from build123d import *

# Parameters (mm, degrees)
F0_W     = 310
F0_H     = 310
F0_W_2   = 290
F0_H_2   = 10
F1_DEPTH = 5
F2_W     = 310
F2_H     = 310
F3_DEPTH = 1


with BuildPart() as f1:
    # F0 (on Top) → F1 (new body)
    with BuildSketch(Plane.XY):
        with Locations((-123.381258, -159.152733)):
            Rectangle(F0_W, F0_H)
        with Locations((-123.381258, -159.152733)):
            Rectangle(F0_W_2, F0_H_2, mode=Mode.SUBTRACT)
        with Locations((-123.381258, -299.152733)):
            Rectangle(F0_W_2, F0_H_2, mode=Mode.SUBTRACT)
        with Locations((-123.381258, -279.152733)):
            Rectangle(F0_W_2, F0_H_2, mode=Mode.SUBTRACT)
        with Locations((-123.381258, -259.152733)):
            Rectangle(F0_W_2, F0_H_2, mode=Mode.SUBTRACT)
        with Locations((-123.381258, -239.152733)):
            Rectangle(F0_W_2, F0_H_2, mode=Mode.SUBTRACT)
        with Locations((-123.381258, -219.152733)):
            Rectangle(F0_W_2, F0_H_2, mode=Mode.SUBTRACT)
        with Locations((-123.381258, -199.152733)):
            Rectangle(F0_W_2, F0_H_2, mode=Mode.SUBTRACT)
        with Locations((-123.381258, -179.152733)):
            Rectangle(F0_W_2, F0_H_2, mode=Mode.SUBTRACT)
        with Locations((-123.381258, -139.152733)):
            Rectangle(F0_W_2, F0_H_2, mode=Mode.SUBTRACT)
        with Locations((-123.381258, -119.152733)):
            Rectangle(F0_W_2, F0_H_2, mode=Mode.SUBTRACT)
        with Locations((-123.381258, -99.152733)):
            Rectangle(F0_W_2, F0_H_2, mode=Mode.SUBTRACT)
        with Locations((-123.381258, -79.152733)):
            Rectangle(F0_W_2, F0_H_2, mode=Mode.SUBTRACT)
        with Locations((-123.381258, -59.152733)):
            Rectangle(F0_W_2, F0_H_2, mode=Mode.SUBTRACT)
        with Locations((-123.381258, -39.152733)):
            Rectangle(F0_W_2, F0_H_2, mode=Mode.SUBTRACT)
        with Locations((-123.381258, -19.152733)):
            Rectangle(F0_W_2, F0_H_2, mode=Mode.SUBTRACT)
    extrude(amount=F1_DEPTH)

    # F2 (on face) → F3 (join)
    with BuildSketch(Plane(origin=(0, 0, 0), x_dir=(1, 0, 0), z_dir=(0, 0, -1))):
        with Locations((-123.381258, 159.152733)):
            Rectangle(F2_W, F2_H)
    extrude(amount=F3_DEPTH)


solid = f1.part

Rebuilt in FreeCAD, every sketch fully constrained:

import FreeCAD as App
import Part
import Sketcher

V = App.Vector

doc = App.newDocument("Part")
params = doc.addObject("Spreadsheet::Sheet", "Params")
for row, (alias, value) in enumerate([
    ("sketch1_width", "310 mm"),
    ("sketch1_width2", "290 mm"),
    ("sketch1_height", "10 mm"),
    ("pad1_length", "5 mm"),
    ("sketch2_width", "310 mm"),
    ("pad2_length", "1 mm"),
], start=1):
    params.set(f"A{row}", alias)
    params.set(f"B{row}", "=" + value)
    params.setAlias(f"B{row}", alias)

body = doc.addObject("PartDesign::Body", "Body")

sketch1 = doc.addObject("Sketcher::SketchObject", "Sketch")
body.addObject(sketch1)
sketch1.AttachmentSupport = (doc.XY_Plane, [""])
sketch1.MapMode = "FlatFace"
sketch1.addGeometry([
    Part.LineSegment(V(-278, -4, 0), V(-278, -314, 0)),
    Part.LineSegment(V(-278, -314, 0), V(32, -314, 0)),
    Part.LineSegment(V(32, -314, 0), V(32, -4, 0)),
    Part.LineSegment(V(32, -4, 0), V(-278, -4, 0)),
    Part.LineSegment(V(22, -304, 0), V(-268, -304, 0)),
    Part.LineSegment(V(-268, -304, 0), V(-268, -294, 0)),
    Part.LineSegment(V(-268, -294, 0), V(22, -294, 0)),
    Part.LineSegment(V(22, -294, 0), V(22, -304, 0)),
    Part.LineSegment(V(22, -284, 0), V(-268, -284, 0)),
    Part.LineSegment(V(-268, -284, 0), V(-268, -274, 0)),
    Part.LineSegment(V(-268, -274, 0), V(22, -274, 0)),
    Part.LineSegment(V(22, -274, 0), V(22, -284, 0)),
    Part.LineSegment(V(22, -264, 0), V(-268, -264, 0)),
    Part.LineSegment(V(-268, -264, 0), V(-268, -254, 0)),
    Part.LineSegment(V(-268, -254, 0), V(22, -254, 0)),
    Part.LineSegment(V(22, -254, 0), V(22, -264, 0)),
    Part.LineSegment(V(22, -244, 0), V(-268, -244, 0)),
    Part.LineSegment(V(-268, -244, 0), V(-268, -234, 0)),
    Part.LineSegment(V(-268, -234, 0), V(22, -234, 0)),
    Part.LineSegment(V(22, -234, 0), V(22, -244, 0)),
    Part.LineSegment(V(22, -224, 0), V(-268, -224, 0)),
    Part.LineSegment(V(-268, -224, 0), V(-268, -214, 0)),
    Part.LineSegment(V(-268, -214, 0), V(22, -214, 0)),
    Part.LineSegment(V(22, -214, 0), V(22, -224, 0)),
    Part.LineSegment(V(22, -204, 0), V(-268, -204, 0)),
    Part.LineSegment(V(-268, -204, 0), V(-268, -194, 0)),
    Part.LineSegment(V(-268, -194, 0), V(22, -194, 0)),
    Part.LineSegment(V(22, -194, 0), V(22, -204, 0)),
    Part.LineSegment(V(22, -184, 0), V(-268, -184, 0)),
    Part.LineSegment(V(-268, -184, 0), V(-268, -174, 0)),
    Part.LineSegment(V(-268, -174, 0), V(22, -174, 0)),
    Part.LineSegment(V(22, -174, 0), V(22, -184, 0)),
    Part.LineSegment(V(22, -164, 0), V(-268, -164, 0)),
    Part.LineSegment(V(-268, -164, 0), V(-268, -154, 0)),
    Part.LineSegment(V(-268, -154, 0), V(22, -154, 0)),
    Part.LineSegment(V(22, -154, 0), V(22, -164, 0)),
    Part.LineSegment(V(22, -144, 0), V(-268, -144, 0)),
    Part.LineSegment(V(-268, -144, 0), V(-268, -134, 0)),
    Part.LineSegment(V(-268, -134, 0), V(22, -134, 0)),
    Part.LineSegment(V(22, -134, 0), V(22, -144, 0)),
    Part.LineSegment(V(22, -124, 0), V(-268, -124, 0)),
    Part.LineSegment(V(-268, -124, 0), V(-268, -114, 0)),
    Part.LineSegment(V(-268, -114, 0), V(22, -114, 0)),
    Part.LineSegment(V(22, -114, 0), V(22, -124, 0)),
    Part.LineSegment(V(22, -104, 0), V(-268, -104, 0)),
    Part.LineSegment(V(-268, -104, 0), V(-268, -94, 0)),
    Part.LineSegment(V(-268, -94, 0), V(22, -94, 0)),
    Part.LineSegment(V(22, -94, 0), V(22, -104, 0)),
    Part.LineSegment(V(22, -84, 0), V(-268, -84, 0)),
    Part.LineSegment(V(-268, -84, 0), V(-268, -74, 0)),
    Part.LineSegment(V(-268, -74, 0), V(22, -74, 0)),
    Part.LineSegment(V(22, -74, 0), V(22, -84, 0)),
    Part.LineSegment(V(22, -64, 0), V(-268, -64, 0)),
    Part.LineSegment(V(-268, -64, 0), V(-268, -54, 0)),
    Part.LineSegment(V(-268, -54, 0), V(22, -54, 0)),
    Part.LineSegment(V(22, -54, 0), V(22, -64, 0)),
    Part.LineSegment(V(22, -44, 0), V(-268, -44, 0)),
    Part.LineSegment(V(-268, -44, 0), V(-268, -34, 0)),
    Part.LineSegment(V(-268, -34, 0), V(22, -34, 0)),
    Part.LineSegment(V(22, -34, 0), V(22, -44, 0)),
    Part.LineSegment(V(22, -24, 0), V(-268, -24, 0)),
    Part.LineSegment(V(-268, -24, 0), V(-268, -14, 0)),
    Part.LineSegment(V(-268, -14, 0), V(22, -14, 0)),
    Part.LineSegment(V(22, -14, 0), V(22, -24, 0)),
], False)
sketch1.addConstraint([
    Sketcher.Constraint("Coincident", 0, 2, 1, 1),
    Sketcher.Constraint("Coincident", 1, 2, 2, 1),
    Sketcher.Constraint("Coincident", 2, 2, 3, 1),
    Sketcher.Constraint("Coincident", 3, 2, 0, 1),
    Sketcher.Constraint("Coincident", 4, 2, 5, 1),
    Sketcher.Constraint("Coincident", 5, 2, 6, 1),
    Sketcher.Constraint("Coincident", 6, 2, 7, 1),
    Sketcher.Constraint("Coincident", 7, 2, 4, 1),
    Sketcher.Constraint("Coincident", 8, 2, 9, 1),
    Sketcher.Constraint("Coincident", 9, 2, 10, 1),
    Sketcher.Constraint("Coincident", 10, 2, 11, 1),
    Sketcher.Constraint("Coincident", 11, 2, 8, 1),
    Sketcher.Constraint("Coincident", 12, 2, 13, 1),
    Sketcher.Constraint("Coincident", 13, 2, 14, 1),
    Sketcher.Constraint("Coincident", 14, 2, 15, 1),
    Sketcher.Constraint("Coincident", 15, 2, 12, 1),
    Sketcher.Constraint("Coincident", 16, 2, 17, 1),
    Sketcher.Constraint("Coincident", 17, 2, 18, 1),
    Sketcher.Constraint("Coincident", 18, 2, 19, 1),
    Sketcher.Constraint("Coincident", 19, 2, 16, 1),
    Sketcher.Constraint("Coincident", 20, 2, 21, 1),
    Sketcher.Constraint("Coincident", 21, 2, 22, 1),
    Sketcher.Constraint("Coincident", 22, 2, 23, 1),
    Sketcher.Constraint("Coincident", 23, 2, 20, 1),
    Sketcher.Constraint("Coincident", 24, 2, 25, 1),
    Sketcher.Constraint("Coincident", 25, 2, 26, 1),
    Sketcher.Constraint("Coincident", 26, 2, 27, 1),
    Sketcher.Constraint("Coincident", 27, 2, 24, 1),
    Sketcher.Constraint("Coincident", 28, 2, 29, 1),
    Sketcher.Constraint("Coincident", 29, 2, 30, 1),
    Sketcher.Constraint("Coincident", 30, 2, 31, 1),
    Sketcher.Constraint("Coincident", 31, 2, 28, 1),
    Sketcher.Constraint("Coincident", 32, 2, 33, 1),
    Sketcher.Constraint("Coincident", 33, 2, 34, 1),
    Sketcher.Constraint("Coincident", 34, 2, 35, 1),
    Sketcher.Constraint("Coincident", 35, 2, 32, 1),
    Sketcher.Constraint("Coincident", 36, 2, 37, 1),
    Sketcher.Constraint("Coincident", 37, 2, 38, 1),
    Sketcher.Constraint("Coincident", 38, 2, 39, 1),
    Sketcher.Constraint("Coincident", 39, 2, 36, 1),
    Sketcher.Constraint("Coincident", 40, 2, 41, 1),
    Sketcher.Constraint("Coincident", 41, 2, 42, 1),
    Sketcher.Constraint("Coincident", 42, 2, 43, 1),
    Sketcher.Constraint("Coincident", 43, 2, 40, 1),
    Sketcher.Constraint("Coincident", 44, 2, 45, 1),
    Sketcher.Constraint("Coincident", 45, 2, 46, 1),
    Sketcher.Constraint("Coincident", 46, 2, 47, 1),
    Sketcher.Constraint("Coincident", 47, 2, 44, 1),
    Sketcher.Constraint("Coincident", 48, 2, 49, 1),
    Sketcher.Constraint("Coincident", 49, 2, 50, 1),
    Sketcher.Constraint("Coincident", 50, 2, 51, 1),
    Sketcher.Constraint("Coincident", 51, 2, 48, 1),
    Sketcher.Constraint("Coincident", 52, 2, 53, 1),
    Sketcher.Constraint("Coincident", 53, 2, 54, 1),
    Sketcher.Constraint("Coincident", 54, 2, 55, 1),
    Sketcher.Constraint("Coincident", 55, 2, 52, 1),
    Sketcher.Constraint("Coincident", 56, 2, 57, 1),
    Sketcher.Constraint("Coincident", 57, 2, 58, 1),
    Sketcher.Constraint("Coincident", 58, 2, 59, 1),
    Sketcher.Constraint("Coincident", 59, 2, 56, 1),
    Sketcher.Constraint("Coincident", 60, 2, 61, 1),
    Sketcher.Constraint("Coincident", 61, 2, 62, 1),
    Sketcher.Constraint("Coincident", 62, 2, 63, 1),
    Sketcher.Constraint("Coincident", 63, 2, 60, 1),
    Sketcher.Constraint("Vertical", 0),
    Sketcher.Constraint("Horizontal", 1),
    Sketcher.Constraint("Vertical", 2),
    Sketcher.Constraint("Horizontal", 3),
    Sketcher.Constraint("Horizontal", 4),
    Sketcher.Constraint("Vertical", 5),
    Sketcher.Constraint("Horizontal", 6),
    Sketcher.Constraint("Vertical", 7),
    Sketcher.Constraint("Horizontal", 8),
    Sketcher.Constraint("Vertical", 9),
    Sketcher.Constraint("Horizontal", 10),
    Sketcher.Constraint("Vertical", 11),
    Sketcher.Constraint("Horizontal", 12),
    Sketcher.Constraint("Vertical", 13),
    Sketcher.Constraint("Horizontal", 14),
    Sketcher.Constraint("Vertical", 15),
    Sketcher.Constraint("Horizontal", 16),
    Sketcher.Constraint("Vertical", 17),
    Sketcher.Constraint("Horizontal", 18),
    Sketcher.Constraint("Vertical", 19),
    Sketcher.Constraint("Horizontal", 20),
    Sketcher.Constraint("Vertical", 21),
    Sketcher.Constraint("Horizontal", 22),
    Sketcher.Constraint("Vertical", 23),
    Sketcher.Constraint("Horizontal", 24),
    Sketcher.Constraint("Vertical", 25),
    Sketcher.Constraint("Horizontal", 26),
    Sketcher.Constraint("Vertical", 27),
    Sketcher.Constraint("Horizontal", 28),
    Sketcher.Constraint("Vertical", 29),
    Sketcher.Constraint("Horizontal", 30),
    Sketcher.Constraint("Vertical", 31),
    Sketcher.Constraint("Horizontal", 32),
    Sketcher.Constraint("Vertical", 33),
    Sketcher.Constraint("Horizontal", 34),
    Sketcher.Constraint("Vertical", 35),
    Sketcher.Constraint("Horizontal", 36),
    Sketcher.Constraint("Vertical", 37),
    Sketcher.Constraint("Horizontal", 38),
    Sketcher.Constraint("Vertical", 39),
    Sketcher.Constraint("Horizontal", 40),
    Sketcher.Constraint("Vertical", 41),
    Sketcher.Constraint("Horizontal", 42),
    Sketcher.Constraint("Vertical", 43),
    Sketcher.Constraint("Horizontal", 44),
    Sketcher.Constraint("Vertical", 45),
    Sketcher.Constraint("Horizontal", 46),
    Sketcher.Constraint("Vertical", 47),
    Sketcher.Constraint("Horizontal", 48),
    Sketcher.Constraint("Vertical", 49),
    Sketcher.Constraint("Horizontal", 50),
    Sketcher.Constraint("Vertical", 51),
    Sketcher.Constraint("Horizontal", 52),
    Sketcher.Constraint("Vertical", 53),
    Sketcher.Constraint("Horizontal", 54),
    Sketcher.Constraint("Vertical", 55),
    Sketcher.Constraint("Horizontal", 56),
    Sketcher.Constraint("Vertical", 57),
    Sketcher.Constraint("Horizontal", 58),
    Sketcher.Constraint("Vertical", 59),
    Sketcher.Constraint("Horizontal", 60),
    Sketcher.Constraint("Vertical", 61),
    Sketcher.Constraint("Horizontal", 62),
    Sketcher.Constraint("Vertical", 63),
    Sketcher.Constraint("Vertical", 5, 2, 8, 2),
    Sketcher.Constraint("Vertical", 7, 2, 10, 2),
    Sketcher.Constraint("Vertical", 9, 2, 12, 2),
    Sketcher.Constraint("Vertical", 11, 2, 14, 2),
    Sketcher.Constraint("Vertical", 13, 2, 16, 2),
    Sketcher.Constraint("Vertical", 15, 2, 18, 2),
    Sketcher.Constraint("Vertical", 17, 2, 20, 2),
    Sketcher.Constraint("Vertical", 19, 2, 22, 2),
    Sketcher.Constraint("Vertical", 21, 2, 24, 2),
    Sketcher.Constraint("Vertical", 23, 2, 26, 2),
    Sketcher.Constraint("Vertical", 25, 2, 28, 2),
    Sketcher.Constraint("Vertical", 27, 2, 30, 2),
    Sketcher.Constraint("Vertical", 29, 2, 32, 2),
    Sketcher.Constraint("Vertical", 31, 2, 34, 2),
    Sketcher.Constraint("Vertical", 33, 2, 36, 2),
    Sketcher.Constraint("Vertical", 35, 2, 38, 2),
    Sketcher.Constraint("Vertical", 37, 2, 40, 2),
    Sketcher.Constraint("Vertical", 39, 2, 42, 2),
    Sketcher.Constraint("Vertical", 41, 2, 44, 2),
    Sketcher.Constraint("Vertical", 43, 2, 46, 2),
    Sketcher.Constraint("Vertical", 45, 2, 48, 2),
    Sketcher.Constraint("Vertical", 47, 2, 50, 2),
    Sketcher.Constraint("Vertical", 49, 2, 52, 2),
    Sketcher.Constraint("Vertical", 51, 2, 54, 2),
    Sketcher.Constraint("Vertical", 53, 2, 56, 2),
    Sketcher.Constraint("Vertical", 55, 2, 58, 2),
    Sketcher.Constraint("Vertical", 57, 2, 60, 2),
    Sketcher.Constraint("Vertical", 59, 2, 62, 2),
    Sketcher.Constraint("Equal", 3, 0),
    Sketcher.Constraint("Equal", 7, 9),
    Sketcher.Constraint("Equal", 11, 13),
    Sketcher.Constraint("Equal", 15, 17),
    Sketcher.Constraint("Equal", 19, 21),
    Sketcher.Constraint("Equal", 23, 25),
    Sketcher.Constraint("Equal", 27, 29),
    Sketcher.Constraint("Equal", 31, 33),
    Sketcher.Constraint("Equal", 35, 37),
    Sketcher.Constraint("Equal", 39, 41),
    Sketcher.Constraint("Equal", 43, 45),
    Sketcher.Constraint("Equal", 47, 49),
    Sketcher.Constraint("Equal", 51, 53),
    Sketcher.Constraint("Equal", 55, 57),
    Sketcher.Constraint("Equal", 59, 61),
    Sketcher.Constraint("DistanceX", 1, 1, 1, 2, 310.0),
    Sketcher.Constraint("DistanceX", 4, 2, 4, 1, 290.0),
    Sketcher.Constraint("DistanceY", 5, 1, 5, 2, 10.0),
    Sketcher.Constraint("DistanceX", 0, 2, -1, 1, 278.381258),
    Sketcher.Constraint("DistanceX", 4, 2, -1, 1, 268.381258),
    Sketcher.Constraint("DistanceY", 0, 2, -1, 1, 314.152733),
    Sketcher.Constraint("DistanceY", 4, 2, -1, 1, 304.152733),
    Sketcher.Constraint("DistanceY", 8, 2, -1, 1, 284.152733),
    Sketcher.Constraint("DistanceY", 12, 2, -1, 1, 264.152733),
    Sketcher.Constraint("DistanceY", 16, 2, -1, 1, 244.152733),
    Sketcher.Constraint("DistanceY", 20, 2, -1, 1, 224.152733),
    Sketcher.Constraint("DistanceY", 24, 2, -1, 1, 204.152733),
    Sketcher.Constraint("DistanceY", 28, 2, -1, 1, 184.152733),
    Sketcher.Constraint("DistanceY", 32, 2, -1, 1, 164.152733),
    Sketcher.Constraint("DistanceY", 36, 2, -1, 1, 144.152733),
    Sketcher.Constraint("DistanceY", 40, 2, -1, 1, 124.152733),
    Sketcher.Constraint("DistanceY", 44, 2, -1, 1, 104.152733),
    Sketcher.Constraint("DistanceY", 48, 2, -1, 1, 84.152733),
    Sketcher.Constraint("DistanceY", 52, 2, -1, 1, 64.152733),
    Sketcher.Constraint("DistanceY", 56, 2, -1, 1, 44.152733),
    Sketcher.Constraint("DistanceY", 60, 2, -1, 1, 24.152733),
])
sketch1.setExpression("Constraints[171]", "Params.sketch1_width")
sketch1.setExpression("Constraints[172]", "Params.sketch1_width2")
sketch1.setExpression("Constraints[173]", "Params.sketch1_height")
pad1 = doc.addObject("PartDesign::Pad", "Pad")
body.addObject(pad1)
pad1.Profile = sketch1
pad1.setExpression("Length", "Params.pad1_length")

sketch2 = doc.addObject("Sketcher::SketchObject", "Sketch001")
body.addObject(sketch2)
sketch2.AttachmentSupport = (doc.XY_Plane, [""])
sketch2.MapMode = "FlatFace"
sketch2.addGeometry([
    Part.LineSegment(V(-278, -314, 0), V(-278, -4, 0)),
    Part.LineSegment(V(-278, -4, 0), V(32, -4, 0)),
    Part.LineSegment(V(32, -4, 0), V(32, -314, 0)),
    Part.LineSegment(V(32, -314, 0), V(-278, -314, 0)),
], False)
sketch2.addConstraint([
    Sketcher.Constraint("Coincident", 0, 2, 1, 1),
    Sketcher.Constraint("Coincident", 1, 2, 2, 1),
    Sketcher.Constraint("Coincident", 2, 2, 3, 1),
    Sketcher.Constraint("Coincident", 3, 2, 0, 1),
    Sketcher.Constraint("Vertical", 0),
    Sketcher.Constraint("Horizontal", 1),
    Sketcher.Constraint("Vertical", 2),
    Sketcher.Constraint("Horizontal", 3),
    Sketcher.Constraint("Equal", 3, 0),
    Sketcher.Constraint("DistanceX", 1, 1, 1, 2, 310.0),
    Sketcher.Constraint("DistanceX", 0, 2, -1, 1, 278.381258),
    Sketcher.Constraint("DistanceY", 0, 2, -1, 1, 4.152733),
])
sketch2.setExpression("Constraints[9]", "Params.sketch2_width")
pad2 = doc.addObject("PartDesign::Pad", "Pad001")
body.addObject(pad2)
pad2.Profile = sketch2
pad2.setExpression("Length", "Params.pad2_length")
pad2.Reversed = True

doc.recompute()
